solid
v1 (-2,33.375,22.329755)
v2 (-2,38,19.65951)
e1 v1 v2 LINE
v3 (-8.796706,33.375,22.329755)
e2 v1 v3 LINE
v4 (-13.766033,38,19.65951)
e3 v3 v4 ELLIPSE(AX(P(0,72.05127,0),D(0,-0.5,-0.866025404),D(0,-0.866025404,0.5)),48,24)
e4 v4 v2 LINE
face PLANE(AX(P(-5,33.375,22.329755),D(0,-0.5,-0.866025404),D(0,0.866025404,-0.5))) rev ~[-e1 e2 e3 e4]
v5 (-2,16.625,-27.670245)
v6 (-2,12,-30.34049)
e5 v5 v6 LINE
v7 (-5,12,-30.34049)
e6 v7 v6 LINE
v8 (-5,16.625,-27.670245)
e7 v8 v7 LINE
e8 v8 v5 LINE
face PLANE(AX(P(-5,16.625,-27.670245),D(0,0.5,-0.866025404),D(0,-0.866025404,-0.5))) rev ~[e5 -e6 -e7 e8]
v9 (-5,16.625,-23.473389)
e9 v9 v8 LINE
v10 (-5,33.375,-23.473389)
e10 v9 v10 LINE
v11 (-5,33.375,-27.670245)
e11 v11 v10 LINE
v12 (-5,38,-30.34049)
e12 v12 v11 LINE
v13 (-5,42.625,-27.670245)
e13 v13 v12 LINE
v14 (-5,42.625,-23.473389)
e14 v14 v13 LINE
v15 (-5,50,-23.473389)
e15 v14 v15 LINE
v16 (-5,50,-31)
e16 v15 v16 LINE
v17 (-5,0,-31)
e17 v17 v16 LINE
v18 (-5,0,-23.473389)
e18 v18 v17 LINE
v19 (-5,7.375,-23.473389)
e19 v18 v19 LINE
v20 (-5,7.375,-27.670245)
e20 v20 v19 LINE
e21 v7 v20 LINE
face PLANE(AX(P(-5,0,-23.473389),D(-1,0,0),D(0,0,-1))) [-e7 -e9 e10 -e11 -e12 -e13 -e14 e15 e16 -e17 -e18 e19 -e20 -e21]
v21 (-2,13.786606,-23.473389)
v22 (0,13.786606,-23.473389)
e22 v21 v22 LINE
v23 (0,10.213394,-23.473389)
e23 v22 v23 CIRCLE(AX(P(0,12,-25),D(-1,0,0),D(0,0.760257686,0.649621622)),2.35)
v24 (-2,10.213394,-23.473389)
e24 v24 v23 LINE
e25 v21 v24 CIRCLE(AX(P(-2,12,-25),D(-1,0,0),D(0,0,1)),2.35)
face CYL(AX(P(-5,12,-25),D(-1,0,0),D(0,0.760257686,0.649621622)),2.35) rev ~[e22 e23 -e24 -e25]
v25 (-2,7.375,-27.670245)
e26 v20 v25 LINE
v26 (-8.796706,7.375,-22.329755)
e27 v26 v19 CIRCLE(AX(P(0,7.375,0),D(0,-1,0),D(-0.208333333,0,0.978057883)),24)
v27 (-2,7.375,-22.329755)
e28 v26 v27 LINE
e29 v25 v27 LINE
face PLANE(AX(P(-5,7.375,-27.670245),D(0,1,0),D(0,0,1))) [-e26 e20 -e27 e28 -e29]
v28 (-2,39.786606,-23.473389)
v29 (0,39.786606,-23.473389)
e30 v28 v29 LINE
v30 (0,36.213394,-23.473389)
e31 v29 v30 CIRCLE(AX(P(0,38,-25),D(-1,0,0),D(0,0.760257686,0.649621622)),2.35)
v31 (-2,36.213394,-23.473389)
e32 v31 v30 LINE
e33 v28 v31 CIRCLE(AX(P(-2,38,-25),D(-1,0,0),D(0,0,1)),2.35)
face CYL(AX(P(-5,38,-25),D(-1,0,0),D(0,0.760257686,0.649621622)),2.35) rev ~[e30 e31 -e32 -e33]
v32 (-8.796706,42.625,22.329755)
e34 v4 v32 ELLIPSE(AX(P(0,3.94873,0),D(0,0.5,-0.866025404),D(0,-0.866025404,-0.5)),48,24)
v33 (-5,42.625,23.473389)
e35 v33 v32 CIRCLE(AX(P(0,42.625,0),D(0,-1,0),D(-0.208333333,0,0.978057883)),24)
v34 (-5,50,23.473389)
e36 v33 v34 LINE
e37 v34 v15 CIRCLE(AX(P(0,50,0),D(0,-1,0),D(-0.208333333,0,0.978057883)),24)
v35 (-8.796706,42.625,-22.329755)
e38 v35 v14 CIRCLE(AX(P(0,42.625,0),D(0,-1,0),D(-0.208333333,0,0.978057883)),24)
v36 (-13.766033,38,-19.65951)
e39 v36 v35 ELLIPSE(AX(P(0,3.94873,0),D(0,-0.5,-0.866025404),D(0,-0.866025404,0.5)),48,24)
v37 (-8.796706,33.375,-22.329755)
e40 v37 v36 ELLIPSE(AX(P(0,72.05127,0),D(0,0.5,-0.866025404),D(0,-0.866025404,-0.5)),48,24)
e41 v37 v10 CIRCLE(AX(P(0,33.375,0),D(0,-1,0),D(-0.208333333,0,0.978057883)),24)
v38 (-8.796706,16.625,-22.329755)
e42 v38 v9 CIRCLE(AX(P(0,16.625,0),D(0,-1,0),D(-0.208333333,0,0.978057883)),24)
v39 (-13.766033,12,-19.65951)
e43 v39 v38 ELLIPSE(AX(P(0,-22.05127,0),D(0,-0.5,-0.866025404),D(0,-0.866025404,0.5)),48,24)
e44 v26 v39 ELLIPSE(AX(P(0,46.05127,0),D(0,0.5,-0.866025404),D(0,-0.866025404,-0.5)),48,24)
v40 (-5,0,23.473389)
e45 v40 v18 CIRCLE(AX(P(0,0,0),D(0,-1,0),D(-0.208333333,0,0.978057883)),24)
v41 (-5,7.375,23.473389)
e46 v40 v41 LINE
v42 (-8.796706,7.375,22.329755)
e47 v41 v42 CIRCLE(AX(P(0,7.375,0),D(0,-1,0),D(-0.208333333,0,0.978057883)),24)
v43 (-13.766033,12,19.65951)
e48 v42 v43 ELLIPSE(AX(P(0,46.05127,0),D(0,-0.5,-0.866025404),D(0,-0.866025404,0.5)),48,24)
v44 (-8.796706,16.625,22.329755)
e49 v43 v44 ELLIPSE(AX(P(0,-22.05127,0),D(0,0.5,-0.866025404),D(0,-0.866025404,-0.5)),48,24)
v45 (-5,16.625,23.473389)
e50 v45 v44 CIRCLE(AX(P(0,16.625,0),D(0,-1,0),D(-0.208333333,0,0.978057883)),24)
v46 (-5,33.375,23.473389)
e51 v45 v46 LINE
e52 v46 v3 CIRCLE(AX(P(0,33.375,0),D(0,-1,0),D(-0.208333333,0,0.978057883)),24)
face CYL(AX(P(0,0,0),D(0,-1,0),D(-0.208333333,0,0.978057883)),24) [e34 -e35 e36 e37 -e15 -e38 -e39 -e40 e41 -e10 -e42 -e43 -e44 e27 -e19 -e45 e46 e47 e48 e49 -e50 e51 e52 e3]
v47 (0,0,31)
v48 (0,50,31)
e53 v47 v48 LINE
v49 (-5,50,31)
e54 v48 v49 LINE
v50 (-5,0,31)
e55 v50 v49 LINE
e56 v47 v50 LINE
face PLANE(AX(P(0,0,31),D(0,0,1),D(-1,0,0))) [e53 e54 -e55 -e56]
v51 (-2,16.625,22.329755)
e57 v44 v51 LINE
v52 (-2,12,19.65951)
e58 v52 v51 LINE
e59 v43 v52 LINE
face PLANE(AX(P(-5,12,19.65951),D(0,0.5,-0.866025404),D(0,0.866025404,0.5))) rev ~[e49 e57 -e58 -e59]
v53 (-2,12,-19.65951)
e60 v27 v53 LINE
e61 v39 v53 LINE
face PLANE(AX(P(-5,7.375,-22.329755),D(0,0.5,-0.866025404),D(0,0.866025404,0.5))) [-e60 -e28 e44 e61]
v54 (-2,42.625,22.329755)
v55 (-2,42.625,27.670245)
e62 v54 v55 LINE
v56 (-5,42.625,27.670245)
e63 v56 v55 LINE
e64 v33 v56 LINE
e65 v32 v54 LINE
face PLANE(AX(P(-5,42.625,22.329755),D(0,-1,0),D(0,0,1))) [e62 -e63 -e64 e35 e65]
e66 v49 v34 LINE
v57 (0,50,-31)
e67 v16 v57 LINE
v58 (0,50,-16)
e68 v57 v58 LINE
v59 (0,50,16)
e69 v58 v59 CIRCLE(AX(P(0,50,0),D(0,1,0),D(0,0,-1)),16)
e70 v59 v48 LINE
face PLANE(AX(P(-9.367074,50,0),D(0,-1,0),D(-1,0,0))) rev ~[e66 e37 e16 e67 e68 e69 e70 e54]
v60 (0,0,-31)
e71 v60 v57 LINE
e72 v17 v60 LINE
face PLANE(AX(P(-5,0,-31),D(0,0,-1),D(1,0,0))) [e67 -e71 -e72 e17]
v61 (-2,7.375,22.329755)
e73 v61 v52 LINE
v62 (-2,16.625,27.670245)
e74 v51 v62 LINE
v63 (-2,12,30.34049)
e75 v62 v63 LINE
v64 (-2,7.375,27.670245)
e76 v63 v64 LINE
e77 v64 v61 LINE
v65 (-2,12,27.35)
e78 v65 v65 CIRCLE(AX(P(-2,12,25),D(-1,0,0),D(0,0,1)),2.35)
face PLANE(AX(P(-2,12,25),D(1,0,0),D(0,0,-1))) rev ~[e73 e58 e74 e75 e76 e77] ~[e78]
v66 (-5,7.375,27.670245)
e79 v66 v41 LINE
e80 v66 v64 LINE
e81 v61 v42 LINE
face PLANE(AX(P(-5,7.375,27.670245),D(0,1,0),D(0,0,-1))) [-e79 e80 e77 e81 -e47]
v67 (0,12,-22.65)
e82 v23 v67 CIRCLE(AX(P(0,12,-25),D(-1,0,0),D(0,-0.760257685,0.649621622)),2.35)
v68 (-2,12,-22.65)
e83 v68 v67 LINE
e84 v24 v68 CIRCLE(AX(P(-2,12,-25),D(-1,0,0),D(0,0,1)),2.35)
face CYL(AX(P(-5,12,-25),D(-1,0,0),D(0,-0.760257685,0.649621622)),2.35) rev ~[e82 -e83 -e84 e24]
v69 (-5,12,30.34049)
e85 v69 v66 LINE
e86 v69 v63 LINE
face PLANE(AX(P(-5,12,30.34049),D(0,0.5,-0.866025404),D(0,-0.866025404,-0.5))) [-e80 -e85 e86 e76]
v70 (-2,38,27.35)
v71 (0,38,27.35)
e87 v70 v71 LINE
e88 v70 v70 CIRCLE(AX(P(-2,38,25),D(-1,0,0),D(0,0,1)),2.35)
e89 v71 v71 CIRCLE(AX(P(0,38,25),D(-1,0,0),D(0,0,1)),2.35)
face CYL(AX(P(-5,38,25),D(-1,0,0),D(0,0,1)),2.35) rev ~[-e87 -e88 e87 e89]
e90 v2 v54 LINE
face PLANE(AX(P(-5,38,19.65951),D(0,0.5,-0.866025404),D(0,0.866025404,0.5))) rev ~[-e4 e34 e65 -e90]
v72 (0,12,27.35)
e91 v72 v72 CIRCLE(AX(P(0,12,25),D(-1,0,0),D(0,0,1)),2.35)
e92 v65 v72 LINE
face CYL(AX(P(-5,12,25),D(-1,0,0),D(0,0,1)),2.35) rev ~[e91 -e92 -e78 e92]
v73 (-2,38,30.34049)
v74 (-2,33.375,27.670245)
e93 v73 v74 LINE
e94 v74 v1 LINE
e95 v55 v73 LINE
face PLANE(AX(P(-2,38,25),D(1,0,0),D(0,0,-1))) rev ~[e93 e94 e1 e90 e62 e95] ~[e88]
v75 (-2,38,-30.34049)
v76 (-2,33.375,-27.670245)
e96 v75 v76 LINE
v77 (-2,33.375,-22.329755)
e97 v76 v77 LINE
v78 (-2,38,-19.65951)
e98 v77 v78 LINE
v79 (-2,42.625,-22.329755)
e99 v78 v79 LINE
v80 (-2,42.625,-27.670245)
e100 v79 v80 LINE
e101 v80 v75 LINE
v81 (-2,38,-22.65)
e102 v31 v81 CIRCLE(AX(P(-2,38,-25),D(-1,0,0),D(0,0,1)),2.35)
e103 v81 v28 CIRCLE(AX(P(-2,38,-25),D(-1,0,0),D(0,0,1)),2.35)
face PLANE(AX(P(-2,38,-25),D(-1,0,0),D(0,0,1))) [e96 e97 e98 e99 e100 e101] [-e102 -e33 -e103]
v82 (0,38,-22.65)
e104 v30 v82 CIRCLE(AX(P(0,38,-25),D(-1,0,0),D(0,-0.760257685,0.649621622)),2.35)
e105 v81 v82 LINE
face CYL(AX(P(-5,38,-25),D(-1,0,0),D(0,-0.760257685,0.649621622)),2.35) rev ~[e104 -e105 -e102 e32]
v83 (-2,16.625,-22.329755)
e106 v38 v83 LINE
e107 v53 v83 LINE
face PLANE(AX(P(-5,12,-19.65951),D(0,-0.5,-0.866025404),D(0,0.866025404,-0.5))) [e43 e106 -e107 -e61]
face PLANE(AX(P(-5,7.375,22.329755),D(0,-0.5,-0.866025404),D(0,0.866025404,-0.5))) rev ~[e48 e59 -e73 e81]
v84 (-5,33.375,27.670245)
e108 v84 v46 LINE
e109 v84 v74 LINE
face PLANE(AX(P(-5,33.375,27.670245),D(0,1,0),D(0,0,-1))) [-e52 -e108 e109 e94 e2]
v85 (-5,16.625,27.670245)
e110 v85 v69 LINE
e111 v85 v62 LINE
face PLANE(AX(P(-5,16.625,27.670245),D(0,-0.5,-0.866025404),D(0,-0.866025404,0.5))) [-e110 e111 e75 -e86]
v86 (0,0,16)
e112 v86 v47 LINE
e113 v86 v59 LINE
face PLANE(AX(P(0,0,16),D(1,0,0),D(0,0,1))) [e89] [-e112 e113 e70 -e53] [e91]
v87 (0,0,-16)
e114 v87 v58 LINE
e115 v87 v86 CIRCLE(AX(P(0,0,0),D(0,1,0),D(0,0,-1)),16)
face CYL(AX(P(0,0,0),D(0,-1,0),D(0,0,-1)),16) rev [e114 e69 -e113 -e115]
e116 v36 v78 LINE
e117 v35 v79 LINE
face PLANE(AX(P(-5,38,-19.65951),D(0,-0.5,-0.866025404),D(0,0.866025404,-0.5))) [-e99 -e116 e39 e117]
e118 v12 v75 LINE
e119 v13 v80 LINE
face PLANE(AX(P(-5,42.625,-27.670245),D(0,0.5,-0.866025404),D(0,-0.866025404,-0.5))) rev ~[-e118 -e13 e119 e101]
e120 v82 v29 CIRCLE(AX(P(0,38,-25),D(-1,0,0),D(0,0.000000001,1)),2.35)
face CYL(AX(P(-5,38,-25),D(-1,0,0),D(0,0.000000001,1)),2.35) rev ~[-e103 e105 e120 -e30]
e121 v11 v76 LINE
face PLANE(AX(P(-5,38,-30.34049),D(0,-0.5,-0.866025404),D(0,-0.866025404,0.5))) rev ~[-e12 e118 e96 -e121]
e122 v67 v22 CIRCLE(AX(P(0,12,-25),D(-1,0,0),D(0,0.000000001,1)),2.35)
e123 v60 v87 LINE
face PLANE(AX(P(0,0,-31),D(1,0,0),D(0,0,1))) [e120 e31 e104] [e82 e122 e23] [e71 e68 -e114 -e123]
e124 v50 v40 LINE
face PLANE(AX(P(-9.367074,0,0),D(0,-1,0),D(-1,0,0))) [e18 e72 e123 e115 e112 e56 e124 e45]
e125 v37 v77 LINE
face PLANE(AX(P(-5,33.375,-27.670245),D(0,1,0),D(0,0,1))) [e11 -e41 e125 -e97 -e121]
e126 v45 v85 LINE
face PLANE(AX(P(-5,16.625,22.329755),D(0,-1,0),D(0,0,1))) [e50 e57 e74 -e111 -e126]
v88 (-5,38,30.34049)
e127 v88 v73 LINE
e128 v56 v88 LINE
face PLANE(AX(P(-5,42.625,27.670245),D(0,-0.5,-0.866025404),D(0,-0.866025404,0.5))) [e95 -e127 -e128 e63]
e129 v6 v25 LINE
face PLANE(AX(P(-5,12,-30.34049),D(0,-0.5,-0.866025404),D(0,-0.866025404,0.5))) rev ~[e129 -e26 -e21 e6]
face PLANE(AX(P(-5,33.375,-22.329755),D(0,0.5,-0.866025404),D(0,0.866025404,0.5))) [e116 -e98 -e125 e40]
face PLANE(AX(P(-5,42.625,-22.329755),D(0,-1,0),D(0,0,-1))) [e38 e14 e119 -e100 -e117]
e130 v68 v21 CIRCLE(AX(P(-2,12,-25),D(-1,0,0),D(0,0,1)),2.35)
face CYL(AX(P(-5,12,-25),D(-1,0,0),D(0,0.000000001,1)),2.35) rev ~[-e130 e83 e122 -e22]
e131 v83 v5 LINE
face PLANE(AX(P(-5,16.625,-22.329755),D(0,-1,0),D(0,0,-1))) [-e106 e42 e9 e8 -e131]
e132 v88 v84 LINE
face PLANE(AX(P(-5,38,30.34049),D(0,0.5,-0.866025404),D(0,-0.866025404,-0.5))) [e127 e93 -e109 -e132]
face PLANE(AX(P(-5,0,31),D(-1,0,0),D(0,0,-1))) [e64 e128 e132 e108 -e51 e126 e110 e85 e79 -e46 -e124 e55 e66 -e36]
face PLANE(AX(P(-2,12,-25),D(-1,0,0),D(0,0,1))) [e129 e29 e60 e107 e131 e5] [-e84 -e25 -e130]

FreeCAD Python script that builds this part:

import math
import FreeCAD as App
import Part
import Sketcher
Q = App.Units.Quantity


def add_polygon(sketch, points):
    """Adds a closed chain of lines whose ends are joined by coincident constraints."""
    first, n = sketch.GeometryCount, len(points)
    for a, b in zip(points, points[1:] + points[:1]):
        sketch.addGeometry(Part.LineSegment(App.Vector(*a, 0), App.Vector(*b, 0)), False)
    for i in range(n):
        sketch.addConstraint(Sketcher.Constraint("Coincident", first + i, 2, first + (i + 1) % n, 1))

doc = App.newDocument("Part")
body = doc.addObject("PartDesign::Body", "Body")

# Sketch on XZ plane
sketch1 = body.newObject("Sketcher::SketchObject", "Sketch")
sketch1.AttachmentSupport = (doc.getObject("XZ_Plane"), [""])
sketch1.MapMode = "FlatFace"
sketch1.addGeometry([
    Part.LineSegment(App.Vector(0, 31, 0), App.Vector(0, 16, 0)),  # 0
    Part.ArcOfCircle(Part.Circle(App.Vector(0, 0, 0), App.Vector(0, 0, 1), 16), math.radians(90), math.radians(270)),  # 1
    Part.LineSegment(App.Vector(0, -16, 0), App.Vector(0, -31, 0)),  # 2
    Part.LineSegment(App.Vector(0, -31, 0), App.Vector(-5, -31, 0)),  # 3
    Part.LineSegment(App.Vector(-5, -31, 0), App.Vector(-5, -23.473389, 0)),  # 4
    Part.ArcOfCircle(Part.Circle(App.Vector(0, 0, 0), App.Vector(0, 0, 1), 24), math.radians(102.024699), math.radians(257.975301)),  # 5
    Part.LineSegment(App.Vector(-5, 23.473389, 0), App.Vector(-5, 31, 0)),  # 6
    Part.LineSegment(App.Vector(-5, 31, 0), App.Vector(0, 31, 0)),  # 7
], False)
sketch1.addConstraint([
    Sketcher.Constraint("Coincident", 0, 2, 1, 1),
    Sketcher.Constraint("Coincident", 1, 2, 2, 1),
    Sketcher.Constraint("Coincident", 2, 2, 3, 1),
    Sketcher.Constraint("Coincident", 3, 2, 4, 1),
    Sketcher.Constraint("Coincident", 4, 2, 5, 2),
    Sketcher.Constraint("Coincident", 5, 1, 6, 1),
    Sketcher.Constraint("Coincident", 6, 2, 7, 1),
    Sketcher.Constraint("Coincident", 7, 2, 0, 1),
    Sketcher.Constraint("Vertical", 0),
    Sketcher.Constraint("Vertical", 2),
    Sketcher.Constraint("Horizontal", 3),
    Sketcher.Constraint("Vertical", 4),
    Sketcher.Constraint("Vertical", 6),
    Sketcher.Constraint("Horizontal", 7),
    Sketcher.Constraint("Coincident", 1, 3, -1, 1),
    Sketcher.Constraint("Coincident", 5, 3, -1, 1),
    Sketcher.Constraint("Symmetric", 2, 2, 7, 2, -1, 1),
    Sketcher.Constraint("PointOnObject", 0, 2, -2),
    Sketcher.Constraint("Vertical", 4, 2, 5, 1),
    Sketcher.Constraint("Radius", 1, Q("16 mm")),
    Sketcher.Constraint("Radius", 5, Q("24 mm")),
    Sketcher.Constraint("DistanceX", 3, 2, 3, 1, Q("5 mm")),
    Sketcher.Constraint("DistanceY", 0, 2, 0, 1, Q("15 mm")),
])
pad1 = body.newObject("PartDesign::Pad", "Pad")
pad1.Profile = sketch1
pad1.Length = 50
pad1.Reversed = True

# Sketch on YZ plane
sketch2 = body.newObject("Sketcher::SketchObject", "Sketch001")
sketch2.AttachmentSupport = (doc.getObject("YZ_Plane"), [""])
sketch2.MapMode = "FlatFace"
sketch2.AttachmentOffset = App.Placement(App.Vector(0, 0, -5), App.Rotation())
add_polygon(sketch2, [(33.375, -22.329755), (38, -19.65951), (42.625, -22.329755), (42.625, -27.670245), (38, -30.34049), (33.375, -27.670245)])  # lines 0-5
add_polygon(sketch2, [(7.375, -22.329755), (12, -19.65951), (16.625, -22.329755), (16.625, -27.670245), (12, -30.34049), (7.375, -27.670245)])  # lines 6-11
add_polygon(sketch2, [(7.375, 22.329755), (7.375, 27.670245), (12, 30.34049), (16.625, 27.670245), (16.625, 22.329755), (12, 19.65951)])  # lines 12-17
add_polygon(sketch2, [(38, 30.34049), (42.625, 27.670245), (42.625, 22.329755), (38, 19.65951), (33.375, 22.329755), (33.375, 27.670245)])  # lines 18-23
sketch2.addConstraint([
    Sketcher.Constraint("Vertical", 2),
    Sketcher.Constraint("Vertical", 5),
    Sketcher.Constraint("Vertical", 8),
    Sketcher.Constraint("Vertical", 11),
    Sketcher.Constraint("Vertical", 12),
    Sketcher.Constraint("Vertical", 15),
    Sketcher.Constraint("Vertical", 19),
    Sketcher.Constraint("Vertical", 22),
    Sketcher.Constraint("Symmetric", 10, 2, 12, 2, -1),
    Sketcher.Constraint("Symmetric", 9, 2, 13, 2, -1),
    Sketcher.Constraint("Symmetric", 8, 2, 14, 2, -1),
    Sketcher.Constraint("Symmetric", 6, 2, 16, 2, -1),
    Sketcher.Constraint("Symmetric", 2, 2, 18, 2, -1),
    Sketcher.Constraint("Symmetric", 0, 2, 20, 2, -1),
    Sketcher.Constraint("Symmetric", 5, 2, 21, 2, -1),
    Sketcher.Constraint("Symmetric", 3, 2, 23, 2, -1),
    Sketcher.Constraint("Parallel", 0, 3),
    Sketcher.Constraint("Parallel", 1, 4),
    Sketcher.Constraint("Parallel", 3, 6),
    Sketcher.Constraint("Parallel", 4, 7),
    Sketcher.Constraint("Parallel", 6, 9),
    Sketcher.Constraint("Parallel", 7, 10),
    Sketcher.Constraint("Parallel", 9, 13),
    Sketcher.Constraint("Parallel", 13, 16),
    Sketcher.Constraint("Parallel", 14, 17),
    Sketcher.Constraint("Parallel", 16, 20),
    Sketcher.Constraint("Parallel", 20, 23),
    Sketcher.Constraint("Horizontal", 2, 2, 4, 2),
    Sketcher.Constraint("Horizontal", 1, 2, 5, 2),
    Sketcher.Constraint("Horizontal", 0, 2, 6, 2),
    Sketcher.Constraint("Horizontal", 5, 2, 7, 2),
    Sketcher.Constraint("Horizontal", 4, 2, 8, 2),
    Sketcher.Constraint("Horizontal", 3, 2, 9, 2),
    Sketcher.Constraint("Horizontal", 8, 2, 10, 2),
    Sketcher.Constraint("Angle", 0, Q("30 deg")),
    Sketcher.Constraint("DistanceX", -1, 1, 0, 2, Q("38 mm")),
    Sketcher.Constraint("DistanceX", -1, 1, 6, 2, Q("12 mm")),
    Sketcher.Constraint("DistanceY", 11, 2, 12, 2, Q("50 mm")),
    Sketcher.Constraint("DistanceX", 4, 2, 2, 2, Q("9.25 mm")),
    Sketcher.Constraint("DistanceY", 2, 2, 2, 1, Q("5.34049 mm")),
])
pocket1 = body.newObject("PartDesign::Pocket", "Pocket")
pocket1.Profile = sketch2
pocket1.Length = 50

# Sketch on YZ plane
sketch3 = body.newObject("Sketcher::SketchObject", "Sketch002")
sketch3.AttachmentSupport = (doc.getObject("YZ_Plane"), [""])
sketch3.MapMode = "FlatFace"
sketch3.AttachmentOffset = App.Placement(App.Vector(0, 0, -5), App.Rotation())
sketch3.addGeometry([
    Part.ArcOfCircle(Part.Circle(App.Vector(38, -25, 0), App.Vector(0, 0, 1), 2.35), math.radians(90), math.radians(139.48692)),  # 0
    Part.ArcOfCircle(Part.Circle(App.Vector(38, -25, 0), App.Vector(0, 0, 1), 2.35), math.radians(40.51308), math.radians(90)),  # 1
    Part.ArcOfCircle(Part.Circle(App.Vector(38, -25, 0), App.Vector(0, 0, 1), 2.35), math.radians(139.48692), math.radians(400.51308)),  # 2
    Part.ArcOfCircle(Part.Circle(App.Vector(12, -25, 0), App.Vector(0, 0, 1), 2.35), math.radians(139.48692), math.radians(400.51308)),  # 3
    Part.ArcOfCircle(Part.Circle(App.Vector(12, -25, 0), App.Vector(0, 0, 1), 2.35), math.radians(90), math.radians(139.48692)),  # 4
    Part.ArcOfCircle(Part.Circle(App.Vector(12, -25, 0), App.Vector(0, 0, 1), 2.35), math.radians(40.51308), math.radians(90)),  # 5
    Part.Circle(App.Vector(38, 25, 0), App.Vector(0, 0, 1), 2.35),  # 6
    Part.Circle(App.Vector(12, 25, 0), App.Vector(0, 0, 1), 2.35),  # 7
], False)
sketch3.addConstraint([
    Sketcher.Constraint("Tangent", 0, 1, 1, 2),
    Sketcher.Constraint("Tangent", 1, 1, 2, 2),
    Sketcher.Constraint("Tangent", 2, 1, 0, 2),
    Sketcher.Constraint("Tangent", 3, 1, 4, 2),
    Sketcher.Constraint("Tangent", 4, 1, 5, 2),
    Sketcher.Constraint("Tangent", 5, 1, 3, 2),
    Sketcher.Constraint("Equal", 2, 3),
    Sketcher.Constraint("Equal", 5, 6),
    Sketcher.Constraint("Equal", 6, 7),
    Sketcher.Constraint("Symmetric", 0, 3, 6, 3, -1),
    Sketcher.Constraint("Symmetric", 3, 3, 7, 3, -1),
    Sketcher.Constraint("Horizontal", 2, 3, 3, 3),
    Sketcher.Constraint("Horizontal", 1, 1, 2, 1),
    Sketcher.Constraint("Horizontal", 2, 1, 3, 1),
    Sketcher.Constraint("Horizontal", 3, 1, 5, 1),
    Sketcher.Constraint("Vertical", 6, 3, 0, 1),
    Sketcher.Constraint("Vertical", 7, 3, 4, 1),
    Sketcher.Constraint("Diameter", 6, Q("4.7 mm")),
    Sketcher.Constraint("DistanceX", -1, 1, 0, 3, Q("38 mm")),
    Sketcher.Constraint("DistanceY", 0, 3, -1, 1, Q("25 mm")),
    Sketcher.Constraint("DistanceX", -1, 1, 3, 3, Q("12 mm")),
    Sketcher.Constraint("DistanceY", 1, 1, -1, 1, Q("23.473389 mm")),
])
pocket2 = body.newObject("PartDesign::Pocket", "Pocket001")
pocket2.Profile = sketch3
pocket2.Length = 10
pocket2.Reversed = True

# Sketch on YZ plane
sketch4 = body.newObject("Sketcher::SketchObject", "Sketch003")
sketch4.AttachmentSupport = (doc.getObject("YZ_Plane"), [""])
sketch4.MapMode = "FlatFace"
sketch4.AttachmentOffset = App.Placement(App.Vector(0, 0, -5), App.Rotation())
add_polygon(sketch4, [(33.375, -22.329755), (38, -19.65951), (42.625, -22.329755), (42.625, -27.670245), (38, -30.34049), (33.375, -27.670245)])  # lines 0-5
sketch4.addGeometry(Part.Circle(App.Vector(38, -25, 0), App.Vector(0, 0, 1), 2.35), False)  # 6
add_polygon(sketch4, [(7.375, -22.329755), (12, -19.65951), (16.625, -22.329755), (16.625, -27.670245), (12, -30.34049), (7.375, -27.670245)])  # lines 7-12
sketch4.addGeometry(Part.Circle(App.Vector(12, -25, 0), App.Vector(0, 0, 1), 2.35), False)  # 13
add_polygon(sketch4, [(7.375, 22.329755), (7.375, 27.670245), (12, 30.34049), (16.625, 27.670245), (16.625, 22.329755), (12, 19.65951)])  # lines 14-19
sketch4.addGeometry(Part.Circle(App.Vector(12, 25, 0), App.Vector(0, 0, 1), 2.35), False)  # 20
add_polygon(sketch4, [(38, 30.34049), (42.625, 27.670245), (42.625, 22.329755), (38, 19.65951), (33.375, 22.329755), (33.375, 27.670245)])  # lines 21-26
sketch4.addGeometry(Part.Circle(App.Vector(38, 25, 0), App.Vector(0, 0, 1), 2.35), False)  # 27
sketch4.addConstraint([
    Sketcher.Constraint("Vertical", 2),
    Sketcher.Constraint("Vertical", 5),
    Sketcher.Constraint("Vertical", 9),
    Sketcher.Constraint("Vertical", 12),
    Sketcher.Constraint("Vertical", 14),
    Sketcher.Constraint("Vertical", 17),
    Sketcher.Constraint("Vertical", 22),
    Sketcher.Constraint("Vertical", 25),
    Sketcher.Constraint("Equal", 6, 13),
    Sketcher.Constraint("Equal", 13, 20),
    Sketcher.Constraint("Equal", 20, 27),
    Sketcher.Constraint("Symmetric", 13, 3, 20, 3, -1),
    Sketcher.Constraint("Symmetric", 6, 3, 27, 3, -1),
    Sketcher.Constraint("Symmetric", 11, 2, 14, 2, -1),
    Sketcher.Constraint("Symmetric", 10, 2, 15, 2, -1),
    Sketcher.Constraint("Symmetric", 9, 2, 16, 2, -1),
    Sketcher.Constraint("Symmetric", 7, 2, 18, 2, -1),
    Sketcher.Constraint("Symmetric", 2, 2, 21, 2, -1),
    Sketcher.Constraint("Symmetric", 0, 2, 23, 2, -1),
    Sketcher.Constraint("Symmetric", 5, 2, 24, 2, -1),
    Sketcher.Constraint("Symmetric", 3, 2, 26, 2, -1),
    Sketcher.Constraint("Parallel", 0, 3),
    Sketcher.Constraint("Parallel", 1, 4),
    Sketcher.Constraint("Parallel", 3, 7),
    Sketcher.Constraint("Parallel", 4, 8),
    Sketcher.Constraint("Parallel", 7, 10),
    Sketcher.Constraint("Parallel", 8, 11),
    Sketcher.Constraint("Parallel", 10, 15),
    Sketcher.Constraint("Parallel", 15, 18),
    Sketcher.Constraint("Parallel", 16, 19),
    Sketcher.Constraint("Parallel", 18, 23),
    Sketcher.Constraint("Parallel", 23, 26),
    Sketcher.Constraint("Horizontal", 6, 3, 13, 3),
    Sketcher.Constraint("Horizontal", 2, 2, 4, 2),
    Sketcher.Constraint("Horizontal", 1, 2, 5, 2),
    Sketcher.Constraint("Horizontal", 0, 2, 7, 2),
    Sketcher.Constraint("Horizontal", 5, 2, 8, 2),
    Sketcher.Constraint("Horizontal", 4, 2, 9, 2),
    Sketcher.Constraint("Horizontal", 3, 2, 10, 2),
    Sketcher.Constraint("Horizontal", 9, 2, 11, 2),
    Sketcher.Constraint("Vertical", 27, 3, 0, 2),
    Sketcher.Constraint("Vertical", 20, 3, 7, 2),
    Sketcher.Constraint("Diameter", 6, Q("4.7 mm")),
    Sketcher.Constraint("Angle", 0, Q("30 deg")),
    Sketcher.Constraint("DistanceX", -1, 1, 6, 3, Q("38 mm")),
    Sketcher.Constraint("DistanceY", 6, 3, -1, 1, Q("25 mm")),
    Sketcher.Constraint("DistanceX", -1, 1, 13, 3, Q("12 mm")),
    Sketcher.Constraint("DistanceY", 12, 2, 14, 2, Q("50 mm")),
    Sketcher.Constraint("DistanceX", 4, 2, 2, 2, Q("9.25 mm")),
    Sketcher.Constraint("DistanceY", 2, 2, 2, 1, Q("5.34049 mm")),
])
pocket3 = body.newObject("PartDesign::Pocket", "Pocket002")
pocket3.Profile = sketch4
pocket3.Length = 3
pocket3.Reversed = True

doc.recompute()
